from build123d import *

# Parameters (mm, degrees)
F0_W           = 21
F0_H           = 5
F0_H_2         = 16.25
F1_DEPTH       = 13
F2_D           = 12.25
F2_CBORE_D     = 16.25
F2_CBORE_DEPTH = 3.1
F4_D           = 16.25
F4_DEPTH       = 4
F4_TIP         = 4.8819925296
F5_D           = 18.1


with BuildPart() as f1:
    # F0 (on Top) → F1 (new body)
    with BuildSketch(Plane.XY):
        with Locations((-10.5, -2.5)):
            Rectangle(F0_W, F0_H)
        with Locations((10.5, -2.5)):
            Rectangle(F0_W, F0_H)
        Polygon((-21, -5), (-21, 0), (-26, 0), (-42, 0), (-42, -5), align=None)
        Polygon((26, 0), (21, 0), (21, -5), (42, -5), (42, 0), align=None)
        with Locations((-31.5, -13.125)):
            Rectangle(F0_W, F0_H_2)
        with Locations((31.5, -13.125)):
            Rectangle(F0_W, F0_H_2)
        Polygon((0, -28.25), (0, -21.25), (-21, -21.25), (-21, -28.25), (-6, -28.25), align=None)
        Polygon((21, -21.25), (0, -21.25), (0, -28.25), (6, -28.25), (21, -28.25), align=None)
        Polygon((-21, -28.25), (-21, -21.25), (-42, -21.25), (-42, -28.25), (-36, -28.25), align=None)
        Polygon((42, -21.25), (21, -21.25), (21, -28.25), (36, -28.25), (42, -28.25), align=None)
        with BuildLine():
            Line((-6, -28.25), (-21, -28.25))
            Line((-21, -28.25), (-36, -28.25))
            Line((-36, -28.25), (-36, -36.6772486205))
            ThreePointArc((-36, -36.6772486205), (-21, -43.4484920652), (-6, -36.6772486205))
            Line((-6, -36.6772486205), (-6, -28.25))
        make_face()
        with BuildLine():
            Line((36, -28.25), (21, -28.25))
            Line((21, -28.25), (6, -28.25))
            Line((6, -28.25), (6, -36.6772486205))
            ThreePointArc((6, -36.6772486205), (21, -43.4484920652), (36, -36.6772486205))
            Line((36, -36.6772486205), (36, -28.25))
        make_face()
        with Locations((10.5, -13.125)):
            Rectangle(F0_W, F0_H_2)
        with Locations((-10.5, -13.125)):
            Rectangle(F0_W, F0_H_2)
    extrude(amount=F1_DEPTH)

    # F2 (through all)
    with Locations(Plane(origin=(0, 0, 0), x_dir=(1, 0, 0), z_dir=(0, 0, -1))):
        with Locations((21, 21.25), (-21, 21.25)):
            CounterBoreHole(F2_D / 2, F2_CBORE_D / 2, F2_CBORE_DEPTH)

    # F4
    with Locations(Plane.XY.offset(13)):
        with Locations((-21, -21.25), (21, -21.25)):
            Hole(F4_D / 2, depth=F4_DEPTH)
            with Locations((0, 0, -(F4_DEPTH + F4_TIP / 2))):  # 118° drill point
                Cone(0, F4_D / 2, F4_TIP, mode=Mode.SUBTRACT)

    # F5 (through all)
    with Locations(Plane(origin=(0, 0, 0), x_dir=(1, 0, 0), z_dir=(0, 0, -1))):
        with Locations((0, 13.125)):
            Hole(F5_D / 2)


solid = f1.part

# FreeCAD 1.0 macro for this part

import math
import FreeCAD as App
import Part
import Sketcher

doc = App.newDocument("Part")
params = doc.addObject("Spreadsheet::Sheet", "Params")
for row, (alias, value) in enumerate([
    ("sketch1_radius", "20 mm"),
    ("sketch1_width", "6 mm"),
    ("sketch1_width2", "12 mm"),
    ("sketch1_width3", "84 mm"),
    ("sketch1_height", "28.25 mm"),
    ("pad1_length", "13 mm"),
    ("sketch2_diameter", "12.25 mm"),
    ("hole_diameter", "12.25 mm"),
    ("hole_cbore_diameter", "16.25 mm"),
    ("hole_cbore_depth", "3.1 mm"),
    ("sketch3_diameter", "16.25 mm"),
    ("hole2_diameter", "16.25 mm"),
    ("hole2_depth", "4 mm"),
    ("sketch4_diameter", "18.1 mm"),
    ("hole3_diameter", "18.1 mm"),
], start=1):
    params.set(f"A{row}", alias)
    params.set(f"B{row}", "=" + value)
    params.setAlias(f"B{row}", alias)

body = doc.addObject("PartDesign::Body", "Body")

sketch1 = body.newObject("Sketcher::SketchObject", "Sketch")
sketch1.AttachmentSupport = (doc.getObject("XY_Plane"), [""])
sketch1.MapMode = "FlatFace"
sketch1.addGeometry([
    Part.LineSegment(App.Vector(-42, -28, 0), App.Vector(-36, -28, 0)),
    Part.LineSegment(App.Vector(-36, -28, 0), App.Vector(-36, -37, 0)),
    Part.ArcOfCircle(Part.Circle(App.Vector(-21, -23, 0), App.Vector(0, 0, 1), 20), math.radians(-139), math.radians(-41)),
    Part.LineSegment(App.Vector(-6, -37, 0), App.Vector(-6, -28, 0)),
    Part.LineSegment(App.Vector(-6, -28, 0), App.Vector(6, -28, 0)),
    Part.LineSegment(App.Vector(6, -28, 0), App.Vector(6, -37, 0)),
    Part.ArcOfCircle(Part.Circle(App.Vector(21, -23, 0), App.Vector(0, 0, 1), 20), math.radians(-139), math.radians(-41)),
    Part.LineSegment(App.Vector(36, -37, 0), App.Vector(36, -28, 0)),
    Part.LineSegment(App.Vector(36, -28, 0), App.Vector(42, -28, 0)),
    Part.LineSegment(App.Vector(42, -28, 0), App.Vector(42, 0, 0)),
    Part.LineSegment(App.Vector(42, 0, 0), App.Vector(-42, 0, 0)),
    Part.LineSegment(App.Vector(-42, 0, 0), App.Vector(-42, -28, 0)),
], False)
sketch1.addConstraint([
    Sketcher.Constraint("Coincident", 0, 2, 1, 1),
    Sketcher.Constraint("Coincident", 1, 2, 2, 1),
    Sketcher.Constraint("Coincident", 2, 2, 3, 1),
    Sketcher.Constraint("Coincident", 3, 2, 4, 1),
    Sketcher.Constraint("Coincident", 4, 2, 5, 1),
    Sketcher.Constraint("Coincident", 5, 2, 6, 1),
    Sketcher.Constraint("Coincident", 6, 2, 7, 1),
    Sketcher.Constraint("Coincident", 7, 2, 8, 1),
    Sketcher.Constraint("Coincident", 8, 2, 9, 1),
    Sketcher.Constraint("Coincident", 9, 2, 10, 1),
    Sketcher.Constraint("Coincident", 10, 2, 11, 1),
    Sketcher.Constraint("Coincident", 11, 2, 0, 1),
    Sketcher.Constraint("Horizontal", 0),
    Sketcher.Constraint("Vertical", 1),
    Sketcher.Constraint("Vertical", 3),
    Sketcher.Constraint("Horizontal", 4),
    Sketcher.Constraint("Vertical", 5),
    Sketcher.Constraint("Vertical", 7),
    Sketcher.Constraint("Horizontal", 8),
    Sketcher.Constraint("Vertical", 9),
    Sketcher.Constraint("Horizontal", 10),
    Sketcher.Constraint("Vertical", 11),
    Sketcher.Constraint("Equal", 2, 6),
    Sketcher.Constraint("Symmetric", 9, 2, 10, 2, -1, 1),
    Sketcher.Constraint("Symmetric", 2, 3, 6, 3, -2),
    Sketcher.Constraint("Symmetric", 0, 2, 7, 2, -2),
    Sketcher.Constraint("Horizontal", 1, 2, 2, 2),
    Sketcher.Constraint("Horizontal", 0, 2, 3, 2),
    Sketcher.Constraint("Horizontal", 2, 2, 5, 2),
    Sketcher.Constraint("Radius", 2, 20.0),
    Sketcher.Constraint("DistanceX", 0, 1, 0, 2, 6.0),
    Sketcher.Constraint("DistanceX", 4, 1, 4, 2, 12.0),
    Sketcher.Constraint("DistanceX", 10, 2, 10, 1, 84.0),
    Sketcher.Constraint("DistanceY", 9, 1, 9, 2, 28.25),
    Sketcher.Constraint("DistanceY", 1, 2, 1, 1, 8.427249),
])
sketch1.setExpression("Constraints[29]", "Params.sketch1_radius")
sketch1.setExpression("Constraints[30]", "Params.sketch1_width")
sketch1.setExpression("Constraints[31]", "Params.sketch1_width2")
sketch1.setExpression("Constraints[32]", "Params.sketch1_width3")
sketch1.setExpression("Constraints[33]", "Params.sketch1_height")
pad1 = body.newObject("PartDesign::Pad", "Pad")
pad1.Profile = sketch1
pad1.setExpression("Length", "Params.pad1_length")

sketch2 = body.newObject("Sketcher::SketchObject", "Sketch001")
sketch2.AttachmentSupport = (doc.getObject("XY_Plane"), [""])
sketch2.MapMode = "FlatFace"
sketch2.addGeometry([
    Part.Circle(App.Vector(21, -21, 0), App.Vector(0, 0, 1), 6),
    Part.Circle(App.Vector(-21, -21, 0), App.Vector(0, 0, 1), 6),
], False)
sketch2.addConstraint([
    Sketcher.Constraint("Equal", 0, 1),
    Sketcher.Constraint("Symmetric", 0, 3, 1, 3, -2),
    Sketcher.Constraint("Diameter", 0, 12.25),
    Sketcher.Constraint("DistanceX", -1, 1, 0, 3, 21.0),
    Sketcher.Constraint("DistanceY", 0, 3, -1, 1, 21.25),
])
sketch2.setExpression("Constraints[2]", "Params.sketch2_diameter")
doc.recompute()
hole = body.newObject("PartDesign::Hole", "Hole")
hole.Profile = sketch2
hole.ThreadType = "None"
hole.setExpression("Diameter", "Params.hole_diameter")
hole.DepthType = "ThroughAll"
hole.HoleCutType = "Counterbore"
hole.setExpression("HoleCutDiameter", "Params.hole_cbore_diameter")
hole.setExpression("HoleCutDepth", "Params.hole_cbore_depth")
hole.Reversed = True

sketch3 = body.newObject("Sketcher::SketchObject", "Sketch002")
sketch3.AttachmentSupport = (doc.getObject("XY_Plane"), [""])
sketch3.MapMode = "FlatFace"
sketch3.AttachmentOffset = App.Placement(App.Vector(0, 0, 13), App.Rotation())
sketch3.addGeometry([
    Part.Circle(App.Vector(-21, -21, 0), App.Vector(0, 0, 1), 8),
    Part.Circle(App.Vector(21, -21, 0), App.Vector(0, 0, 1), 8),
], False)
sketch3.addConstraint([
    Sketcher.Constraint("Equal", 0, 1),
    Sketcher.Constraint("Symmetric", 0, 3, 1, 3, -2),
    Sketcher.Constraint("Diameter", 0, 16.25),
    Sketcher.Constraint("DistanceX", 0, 3, -1, 1, 21.0),
    Sketcher.Constraint("DistanceY", 0, 3, -1, 1, 21.25),
])
sketch3.setExpression("Constraints[2]", "Params.sketch3_diameter")
doc.recompute()
hole2 = body.newObject("PartDesign::Hole", "Hole001")
hole2.Profile = sketch3
hole2.ThreadType = "None"
hole2.setExpression("Diameter", "Params.hole2_diameter")
hole2.DepthType = "Dimension"
hole2.setExpression("Depth", "Params.hole2_depth")
hole2.DrillPoint = "Angled"
hole2.DrillPointAngle = 118

sketch4 = body.newObject("Sketcher::SketchObject", "Sketch003")
sketch4.AttachmentSupport = (doc.getObject("XY_Plane"), [""])
sketch4.MapMode = "FlatFace"
sketch4.addGeometry(Part.Circle(App.Vector(0, -13, 0), App.Vector(0, 0, 1), 9), False)
sketch4.addConstraint([
    Sketcher.Constraint("PointOnObject", 0, 3, -2),
    Sketcher.Constraint("Diameter", 0, 18.1),
    Sketcher.Constraint("DistanceY", 0, 3, -1, 1, 13.125),
])
sketch4.setExpression("Constraints[1]", "Params.sketch4_diameter")
doc.recompute()
hole3 = body.newObject("PartDesign::Hole", "Hole002")
hole3.Profile = sketch4
hole3.ThreadType = "None"
hole3.setExpression("Diameter", "Params.hole3_diameter")
hole3.DepthType = "ThroughAll"
hole3.Reversed = True

doc.recompute()
